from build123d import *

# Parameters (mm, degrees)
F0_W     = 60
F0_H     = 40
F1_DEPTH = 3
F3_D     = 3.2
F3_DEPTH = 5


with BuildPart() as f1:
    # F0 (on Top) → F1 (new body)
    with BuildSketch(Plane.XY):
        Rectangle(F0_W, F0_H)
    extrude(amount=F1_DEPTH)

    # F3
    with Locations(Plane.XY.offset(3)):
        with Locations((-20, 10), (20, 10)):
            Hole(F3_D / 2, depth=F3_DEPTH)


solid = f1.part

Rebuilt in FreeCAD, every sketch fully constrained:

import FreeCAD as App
import Part
import Sketcher

V = App.Vector
Q = App.Units.Quantity

doc = App.newDocument("Part")
params = doc.addObject("Spreadsheet::Sheet", "Params")
for row, (alias, value) in enumerate([
    ("sketch1_width", "60 mm"),
    ("sketch1_height", "40 mm"),
    ("pad1_length", "3 mm"),
    ("sketch2_diameter", "3.2 mm"),
    ("hole_diameter", "3.2 mm"),
    ("hole_depth", "5 mm"),
], start=1):
    params.set(f"A{row}", alias)
    params.set(f"B{row}", "=" + value)
    params.setAlias(f"B{row}", alias)

body = doc.addObject("PartDesign::Body", "Body")

# Sketch on XY plane
sketch1 = doc.addObject("Sketcher::SketchObject", "Sketch")
body.addObject(sketch1)
sketch1.AttachmentSupport = (doc.XY_Plane, [""])
sketch1.MapMode = "FlatFace"
sketch1.addGeometry([
    Part.LineSegment(V(-30, 20, 0), V(-30, -20, 0)),
    Part.LineSegment(V(-30, -20, 0), V(30, -20, 0)),
    Part.LineSegment(V(30, -20, 0), V(30, 20, 0)),
    Part.LineSegment(V(30, 20, 0), V(-30, 20, 0)),
], False)
sketch1.addConstraint([
    Sketcher.Constraint("Coincident", 0, 2, 1, 1),
    Sketcher.Constraint("Coincident", 1, 2, 2, 1),
    Sketcher.Constraint("Coincident", 2, 2, 3, 1),
    Sketcher.Constraint("Coincident", 3, 2, 0, 1),
    Sketcher.Constraint("Vertical", 0),
    Sketcher.Constraint("Horizontal", 1),
    Sketcher.Constraint("Vertical", 2),
    Sketcher.Constraint("Horizontal", 3),
    Sketcher.Constraint("Symmetric", 0, 2, 2, 2, -1, 1),
    Sketcher.Constraint("DistanceX", 1, 1, 1, 2, Q("60 mm")),
    Sketcher.Constraint("DistanceY", 0, 2, 0, 1, Q("40 mm")),
])
sketch1.setExpression("Constraints[9]", "Params.sketch1_width")
sketch1.setExpression("Constraints[10]", "Params.sketch1_height")
pad1 = doc.addObject("PartDesign::Pad", "Pad")
body.addObject(pad1)
pad1.Profile = sketch1
pad1.setExpression("Length", "Params.pad1_length")

# Sketch on XY plane
sketch2 = doc.addObject("Sketcher::SketchObject", "Sketch001")
body.addObject(sketch2)
sketch2.AttachmentSupport = (doc.XY_Plane, [""])
sketch2.MapMode = "FlatFace"
sketch2.AttachmentOffset = App.Placement(V(0, 0, 3), App.Rotation())
sketch2.addGeometry([
    Part.Circle(V(-20, 10, 0), V(0, 0, 1), 1.6),
    Part.Circle(V(20, 10, 0), V(0, 0, 1), 1.6),
], False)
sketch2.addConstraint([
    Sketcher.Constraint("Equal", 0, 1),
    Sketcher.Constraint("Symmetric", 0, 3, 1, 3, -2),
    Sketcher.Constraint("Diameter", 0, Q("3.2 mm")),
    Sketcher.Constraint("DistanceX", 0, 3, -1, 1, Q("20 mm")),
    Sketcher.Constraint("DistanceY", -1, 1, 0, 3, Q("10 mm")),
])
sketch2.setExpression("Constraints[2]", "Params.sketch2_diameter")
doc.recompute()
hole = doc.addObject("PartDesign::Hole", "Hole")
body.addObject(hole)
hole.Profile = sketch2
hole.ThreadType = "None"
hole.setExpression("Diameter", "Params.hole_diameter")
hole.DepthType = "Dimension"
hole.setExpression("Depth", "Params.hole_depth")
hole.DrillPoint = "Flat"

doc.recompute()
